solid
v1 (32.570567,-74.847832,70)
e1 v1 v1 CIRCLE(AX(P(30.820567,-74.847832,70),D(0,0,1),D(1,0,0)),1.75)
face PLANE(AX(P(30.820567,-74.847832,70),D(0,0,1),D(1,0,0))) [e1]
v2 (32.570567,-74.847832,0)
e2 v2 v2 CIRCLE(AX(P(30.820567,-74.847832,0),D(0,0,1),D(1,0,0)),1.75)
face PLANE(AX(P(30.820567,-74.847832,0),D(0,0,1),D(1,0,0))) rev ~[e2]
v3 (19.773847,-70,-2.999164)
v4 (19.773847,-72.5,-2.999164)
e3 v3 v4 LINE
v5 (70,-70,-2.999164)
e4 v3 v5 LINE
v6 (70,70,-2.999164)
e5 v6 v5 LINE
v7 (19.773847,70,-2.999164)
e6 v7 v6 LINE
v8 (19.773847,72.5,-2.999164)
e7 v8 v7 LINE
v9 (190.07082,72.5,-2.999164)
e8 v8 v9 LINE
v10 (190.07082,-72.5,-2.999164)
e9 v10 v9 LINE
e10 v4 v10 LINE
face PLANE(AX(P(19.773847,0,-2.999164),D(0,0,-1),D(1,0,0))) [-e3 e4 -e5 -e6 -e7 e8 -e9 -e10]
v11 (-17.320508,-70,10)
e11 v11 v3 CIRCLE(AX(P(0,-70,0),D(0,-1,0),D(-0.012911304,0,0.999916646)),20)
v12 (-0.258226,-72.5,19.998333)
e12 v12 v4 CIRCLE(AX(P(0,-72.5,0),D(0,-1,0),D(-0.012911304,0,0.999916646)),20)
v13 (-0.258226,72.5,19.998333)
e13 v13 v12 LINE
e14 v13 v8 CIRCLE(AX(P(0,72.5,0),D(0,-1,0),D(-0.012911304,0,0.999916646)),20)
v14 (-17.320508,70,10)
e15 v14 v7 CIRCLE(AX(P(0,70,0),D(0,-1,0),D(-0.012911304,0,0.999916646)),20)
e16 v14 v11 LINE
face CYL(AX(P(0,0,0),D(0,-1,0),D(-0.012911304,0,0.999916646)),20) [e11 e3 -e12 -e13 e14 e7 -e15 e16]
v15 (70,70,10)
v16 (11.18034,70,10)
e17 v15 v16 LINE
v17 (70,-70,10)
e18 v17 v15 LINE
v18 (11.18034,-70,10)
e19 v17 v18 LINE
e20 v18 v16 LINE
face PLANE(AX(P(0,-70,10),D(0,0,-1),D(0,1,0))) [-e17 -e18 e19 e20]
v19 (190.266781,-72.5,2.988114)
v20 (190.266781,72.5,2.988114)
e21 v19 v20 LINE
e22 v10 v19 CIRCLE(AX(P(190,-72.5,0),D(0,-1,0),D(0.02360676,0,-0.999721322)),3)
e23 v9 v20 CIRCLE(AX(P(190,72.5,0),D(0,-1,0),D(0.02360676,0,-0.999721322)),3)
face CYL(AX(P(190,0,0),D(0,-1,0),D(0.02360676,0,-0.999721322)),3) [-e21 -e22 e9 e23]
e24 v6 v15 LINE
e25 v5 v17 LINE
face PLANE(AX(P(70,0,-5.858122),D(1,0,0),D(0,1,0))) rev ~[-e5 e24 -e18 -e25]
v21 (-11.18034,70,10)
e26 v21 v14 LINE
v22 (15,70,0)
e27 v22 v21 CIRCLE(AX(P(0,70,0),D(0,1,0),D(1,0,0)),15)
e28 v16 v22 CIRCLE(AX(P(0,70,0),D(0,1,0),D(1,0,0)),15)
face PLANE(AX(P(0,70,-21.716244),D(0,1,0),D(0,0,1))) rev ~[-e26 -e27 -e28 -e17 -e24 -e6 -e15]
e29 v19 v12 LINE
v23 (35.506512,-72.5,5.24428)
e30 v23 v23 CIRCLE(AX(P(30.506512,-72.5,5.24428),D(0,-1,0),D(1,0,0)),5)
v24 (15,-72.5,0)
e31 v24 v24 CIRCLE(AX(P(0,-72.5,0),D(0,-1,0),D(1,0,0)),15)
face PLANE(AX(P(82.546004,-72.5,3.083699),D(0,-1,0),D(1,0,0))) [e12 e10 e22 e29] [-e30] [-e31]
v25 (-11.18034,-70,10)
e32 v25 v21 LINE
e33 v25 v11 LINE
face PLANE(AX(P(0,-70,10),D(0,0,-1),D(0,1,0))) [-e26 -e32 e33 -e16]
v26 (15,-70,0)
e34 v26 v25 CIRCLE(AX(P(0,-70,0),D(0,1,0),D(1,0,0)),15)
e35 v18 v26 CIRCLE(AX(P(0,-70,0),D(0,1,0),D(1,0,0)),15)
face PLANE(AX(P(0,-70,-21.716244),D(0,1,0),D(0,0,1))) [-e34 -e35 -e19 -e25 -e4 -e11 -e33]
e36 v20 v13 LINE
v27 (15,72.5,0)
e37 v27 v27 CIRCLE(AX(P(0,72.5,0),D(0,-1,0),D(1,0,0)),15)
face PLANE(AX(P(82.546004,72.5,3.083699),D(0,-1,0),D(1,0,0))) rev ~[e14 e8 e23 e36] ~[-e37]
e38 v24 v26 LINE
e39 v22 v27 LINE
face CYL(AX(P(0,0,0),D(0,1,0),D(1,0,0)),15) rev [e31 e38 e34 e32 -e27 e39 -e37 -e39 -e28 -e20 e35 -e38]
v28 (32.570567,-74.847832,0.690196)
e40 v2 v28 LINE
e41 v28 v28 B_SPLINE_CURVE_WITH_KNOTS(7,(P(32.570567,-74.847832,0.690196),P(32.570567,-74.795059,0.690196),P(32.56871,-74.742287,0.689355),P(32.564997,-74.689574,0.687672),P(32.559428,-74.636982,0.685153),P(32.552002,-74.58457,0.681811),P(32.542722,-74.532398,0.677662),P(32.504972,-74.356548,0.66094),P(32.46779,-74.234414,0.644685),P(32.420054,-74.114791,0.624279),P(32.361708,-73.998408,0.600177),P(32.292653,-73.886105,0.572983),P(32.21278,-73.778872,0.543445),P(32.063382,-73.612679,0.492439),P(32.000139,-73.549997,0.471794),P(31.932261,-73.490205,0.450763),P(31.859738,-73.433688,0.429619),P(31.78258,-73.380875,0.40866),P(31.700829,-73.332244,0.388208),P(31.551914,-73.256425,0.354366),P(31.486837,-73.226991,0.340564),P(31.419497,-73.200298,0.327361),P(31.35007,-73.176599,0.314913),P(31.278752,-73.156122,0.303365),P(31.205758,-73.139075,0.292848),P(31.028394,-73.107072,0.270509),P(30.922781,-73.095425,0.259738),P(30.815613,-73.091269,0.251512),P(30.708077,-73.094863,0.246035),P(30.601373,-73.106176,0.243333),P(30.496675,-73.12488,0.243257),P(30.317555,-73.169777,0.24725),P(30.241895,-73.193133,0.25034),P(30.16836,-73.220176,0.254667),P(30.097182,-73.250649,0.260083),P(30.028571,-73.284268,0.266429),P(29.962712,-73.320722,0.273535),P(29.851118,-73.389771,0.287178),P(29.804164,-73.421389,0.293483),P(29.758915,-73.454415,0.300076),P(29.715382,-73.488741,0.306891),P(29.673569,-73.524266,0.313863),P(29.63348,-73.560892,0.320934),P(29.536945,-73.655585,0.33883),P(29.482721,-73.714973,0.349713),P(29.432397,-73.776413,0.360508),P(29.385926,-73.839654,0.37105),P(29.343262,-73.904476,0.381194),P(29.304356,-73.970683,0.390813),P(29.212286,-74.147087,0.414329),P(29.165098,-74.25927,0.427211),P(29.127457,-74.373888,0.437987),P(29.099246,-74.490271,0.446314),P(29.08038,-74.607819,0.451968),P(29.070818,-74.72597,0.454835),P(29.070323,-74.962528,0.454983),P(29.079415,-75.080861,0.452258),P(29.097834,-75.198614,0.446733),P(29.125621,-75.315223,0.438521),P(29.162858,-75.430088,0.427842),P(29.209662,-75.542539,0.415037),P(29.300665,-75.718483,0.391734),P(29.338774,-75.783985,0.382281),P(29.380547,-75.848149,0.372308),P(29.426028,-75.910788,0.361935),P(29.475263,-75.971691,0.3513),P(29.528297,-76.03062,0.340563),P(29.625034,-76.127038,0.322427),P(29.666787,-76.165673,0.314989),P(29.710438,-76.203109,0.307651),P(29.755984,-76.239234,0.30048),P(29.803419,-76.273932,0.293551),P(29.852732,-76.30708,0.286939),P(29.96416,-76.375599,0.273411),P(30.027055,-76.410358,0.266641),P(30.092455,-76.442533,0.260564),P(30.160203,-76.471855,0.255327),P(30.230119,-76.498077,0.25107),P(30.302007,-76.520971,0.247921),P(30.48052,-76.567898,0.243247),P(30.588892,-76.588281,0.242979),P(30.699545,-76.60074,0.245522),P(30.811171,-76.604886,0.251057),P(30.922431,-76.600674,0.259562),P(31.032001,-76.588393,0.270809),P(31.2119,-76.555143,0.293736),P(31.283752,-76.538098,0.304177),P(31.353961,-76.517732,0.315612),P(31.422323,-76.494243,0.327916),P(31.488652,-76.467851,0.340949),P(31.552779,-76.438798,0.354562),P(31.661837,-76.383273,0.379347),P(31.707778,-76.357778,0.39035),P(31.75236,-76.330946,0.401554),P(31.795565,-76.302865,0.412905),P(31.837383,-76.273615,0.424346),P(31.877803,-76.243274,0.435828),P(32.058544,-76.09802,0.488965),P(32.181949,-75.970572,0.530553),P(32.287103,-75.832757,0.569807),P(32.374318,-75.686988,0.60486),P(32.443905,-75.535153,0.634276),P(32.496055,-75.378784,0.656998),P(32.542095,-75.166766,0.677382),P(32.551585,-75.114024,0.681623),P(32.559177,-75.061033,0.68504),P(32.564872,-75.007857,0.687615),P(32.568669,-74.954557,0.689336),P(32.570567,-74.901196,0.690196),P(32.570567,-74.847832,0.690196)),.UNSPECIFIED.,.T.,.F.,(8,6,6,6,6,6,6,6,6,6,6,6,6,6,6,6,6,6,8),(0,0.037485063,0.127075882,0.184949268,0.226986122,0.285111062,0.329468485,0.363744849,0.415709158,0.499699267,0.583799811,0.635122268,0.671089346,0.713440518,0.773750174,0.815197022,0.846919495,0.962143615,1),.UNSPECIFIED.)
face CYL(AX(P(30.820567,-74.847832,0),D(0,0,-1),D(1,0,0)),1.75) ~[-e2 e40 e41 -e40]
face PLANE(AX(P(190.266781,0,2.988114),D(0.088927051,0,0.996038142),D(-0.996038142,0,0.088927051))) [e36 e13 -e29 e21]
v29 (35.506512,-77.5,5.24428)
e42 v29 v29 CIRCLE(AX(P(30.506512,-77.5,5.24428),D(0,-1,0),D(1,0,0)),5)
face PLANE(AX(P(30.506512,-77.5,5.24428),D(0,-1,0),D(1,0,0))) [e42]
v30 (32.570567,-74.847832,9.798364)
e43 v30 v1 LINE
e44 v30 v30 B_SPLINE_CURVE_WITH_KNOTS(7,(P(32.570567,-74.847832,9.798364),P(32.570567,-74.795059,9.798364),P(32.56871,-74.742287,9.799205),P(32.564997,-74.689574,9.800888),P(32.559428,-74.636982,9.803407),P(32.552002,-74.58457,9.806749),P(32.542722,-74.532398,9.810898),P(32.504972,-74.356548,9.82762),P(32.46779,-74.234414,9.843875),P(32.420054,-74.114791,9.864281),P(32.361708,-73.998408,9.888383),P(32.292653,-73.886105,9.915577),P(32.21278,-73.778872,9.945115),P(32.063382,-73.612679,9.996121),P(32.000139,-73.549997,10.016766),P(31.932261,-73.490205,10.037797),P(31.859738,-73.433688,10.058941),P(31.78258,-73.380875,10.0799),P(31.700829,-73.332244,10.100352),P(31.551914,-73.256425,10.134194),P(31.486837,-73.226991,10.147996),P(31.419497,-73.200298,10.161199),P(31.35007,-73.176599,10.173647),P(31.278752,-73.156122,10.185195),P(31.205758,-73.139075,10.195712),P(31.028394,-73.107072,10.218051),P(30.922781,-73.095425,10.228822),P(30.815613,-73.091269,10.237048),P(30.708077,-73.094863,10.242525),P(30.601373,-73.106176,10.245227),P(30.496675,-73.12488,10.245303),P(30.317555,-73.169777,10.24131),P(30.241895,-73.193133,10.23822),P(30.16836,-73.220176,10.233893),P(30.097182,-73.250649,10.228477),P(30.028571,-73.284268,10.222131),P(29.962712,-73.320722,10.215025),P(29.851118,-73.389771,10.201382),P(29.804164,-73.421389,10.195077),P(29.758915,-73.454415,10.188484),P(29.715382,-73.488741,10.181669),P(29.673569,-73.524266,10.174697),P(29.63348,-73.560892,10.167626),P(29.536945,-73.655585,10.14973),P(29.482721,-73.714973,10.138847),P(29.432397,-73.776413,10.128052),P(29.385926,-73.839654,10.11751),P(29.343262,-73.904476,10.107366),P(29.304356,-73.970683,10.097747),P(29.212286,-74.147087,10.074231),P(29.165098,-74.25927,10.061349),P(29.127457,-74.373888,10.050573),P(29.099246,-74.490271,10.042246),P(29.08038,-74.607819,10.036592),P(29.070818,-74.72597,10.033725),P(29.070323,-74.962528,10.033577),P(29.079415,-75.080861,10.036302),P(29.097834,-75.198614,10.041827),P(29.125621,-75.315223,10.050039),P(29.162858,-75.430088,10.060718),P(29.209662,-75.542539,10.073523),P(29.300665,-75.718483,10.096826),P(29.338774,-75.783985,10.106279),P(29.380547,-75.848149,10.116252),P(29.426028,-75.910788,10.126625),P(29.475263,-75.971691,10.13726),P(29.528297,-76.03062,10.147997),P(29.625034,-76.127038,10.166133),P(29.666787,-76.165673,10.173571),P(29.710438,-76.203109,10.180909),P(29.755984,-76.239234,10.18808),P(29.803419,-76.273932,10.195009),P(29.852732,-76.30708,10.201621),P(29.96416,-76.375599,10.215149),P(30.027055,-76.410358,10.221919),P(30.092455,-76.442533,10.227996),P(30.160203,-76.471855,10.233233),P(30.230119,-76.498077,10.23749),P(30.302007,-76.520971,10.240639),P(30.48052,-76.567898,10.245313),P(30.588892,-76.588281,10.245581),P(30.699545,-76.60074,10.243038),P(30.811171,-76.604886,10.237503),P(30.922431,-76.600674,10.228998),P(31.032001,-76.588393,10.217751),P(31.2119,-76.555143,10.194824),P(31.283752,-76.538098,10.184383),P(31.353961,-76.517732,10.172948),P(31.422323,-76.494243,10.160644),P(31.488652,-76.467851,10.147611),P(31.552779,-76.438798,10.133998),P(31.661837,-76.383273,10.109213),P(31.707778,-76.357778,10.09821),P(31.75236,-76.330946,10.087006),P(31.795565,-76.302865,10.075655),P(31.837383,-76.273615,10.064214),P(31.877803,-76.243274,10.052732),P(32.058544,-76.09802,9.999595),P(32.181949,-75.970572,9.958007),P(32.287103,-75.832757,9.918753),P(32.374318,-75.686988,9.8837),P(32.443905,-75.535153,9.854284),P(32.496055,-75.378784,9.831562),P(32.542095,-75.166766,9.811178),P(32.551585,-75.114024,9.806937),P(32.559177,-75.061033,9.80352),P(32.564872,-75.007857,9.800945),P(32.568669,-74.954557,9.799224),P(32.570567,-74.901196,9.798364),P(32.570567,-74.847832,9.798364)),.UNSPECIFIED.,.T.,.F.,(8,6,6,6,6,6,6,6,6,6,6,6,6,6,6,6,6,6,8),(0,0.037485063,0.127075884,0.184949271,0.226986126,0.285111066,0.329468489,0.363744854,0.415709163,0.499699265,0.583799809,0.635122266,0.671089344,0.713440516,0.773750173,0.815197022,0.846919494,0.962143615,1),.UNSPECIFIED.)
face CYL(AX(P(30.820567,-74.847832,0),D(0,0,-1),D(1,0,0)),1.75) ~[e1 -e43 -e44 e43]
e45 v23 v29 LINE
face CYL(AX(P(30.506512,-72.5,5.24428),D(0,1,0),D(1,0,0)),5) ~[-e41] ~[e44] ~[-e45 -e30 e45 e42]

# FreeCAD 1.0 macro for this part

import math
import FreeCAD as App
import Part
import Sketcher


def add_polygon(sketch, points):
    """Adds a closed chain of lines whose ends are joined by coincident constraints."""
    first, n = sketch.GeometryCount, len(points)
    for a, b in zip(points, points[1:] + points[:1]):
        sketch.addGeometry(Part.LineSegment(App.Vector(*a, 0), App.Vector(*b, 0)), False)
    for i in range(n):
        sketch.addConstraint(Sketcher.Constraint("Coincident", first + i, 2, first + (i + 1) % n, 1))

doc = App.newDocument("Part")
body = doc.addObject("PartDesign::Body", "Body")

sketch1 = body.newObject("Sketcher::SketchObject", "Sketch")
sketch1.AttachmentSupport = (doc.getObject("XZ_Plane"), [""])
sketch1.MapMode = "FlatFace"
sketch1.addGeometry([
    Part.LineSegment(App.Vector(190.3, 3, 0), App.Vector(-0.3, 20, 0)),
    Part.ArcOfCircle(Part.Circle(App.Vector(0, 0, 0), App.Vector(0, 0, 1), 20), math.radians(91), math.radians(351)),
    Part.LineSegment(App.Vector(19.8, -3, 0), App.Vector(190.1, -3, 0)),
    Part.ArcOfCircle(Part.Circle(App.Vector(190, 0, 0), App.Vector(0, 0, 1), 3), math.radians(-89), math.radians(85)),
    Part.Circle(App.Vector(0, 0, 0), App.Vector(0, 0, 1), 15),
], False)
sketch1.addConstraint([
    Sketcher.Constraint("Coincident", 0, 2, 1, 1),
    Sketcher.Constraint("Coincident", 1, 2, 2, 1),
    Sketcher.Constraint("Coincident", 2, 2, 3, 1),
    Sketcher.Constraint("Tangent", 3, 2, 0, 1),
    Sketcher.Constraint("Horizontal", 2),
    Sketcher.Constraint("Coincident", 1, 3, -1, 1),
    Sketcher.Constraint("Coincident", 4, 3, -1, 1),
    Sketcher.Constraint("PointOnObject", 3, 3, -1),
    Sketcher.Constraint("Diameter", 4, 30.0),
    Sketcher.Constraint("Radius", 1, 20.0),
    Sketcher.Constraint("Radius", 3, 3.0),
    Sketcher.Constraint("DistanceX", -1, 1, 3, 3, 190.0),
    Sketcher.Constraint("DistanceX", 2, 1, 2, 2, 170.296973),
    Sketcher.Constraint("Distance", 0, 191.282843),
])
pad1 = body.newObject("PartDesign::Pad", "Pad")
pad1.Profile = sketch1
pad1.Length = 145
pad1.Midplane = True

sketch2 = body.newObject("Sketcher::SketchObject", "Sketch001")
sketch2.AttachmentSupport = (doc.getObject("YZ_Plane"), [""])
sketch2.MapMode = "FlatFace"
add_polygon(sketch2, [(-70, 10), (-70, -22), (70, -22), (70, 10)])
sketch2.addConstraint([
    Sketcher.Constraint("Vertical", 0),
    Sketcher.Constraint("Horizontal", 1),
    Sketcher.Constraint("Vertical", 2),
    Sketcher.Constraint("Horizontal", 3),
    Sketcher.Constraint("DistanceX", 1, 1, 1, 2, 140.0),
    Sketcher.Constraint("DistanceX", 0, 2, -1, 1, 70.0),
    Sketcher.Constraint("DistanceY", -1, 1, 2, 2, 10.0),
    Sketcher.Constraint("DistanceY", 0, 2, 0, 1, 31.716244),
])
pocket1 = body.newObject("PartDesign::Pocket", "Pocket")
pocket1.Profile = sketch2
pocket1.Length = 140
pocket1.Midplane = True

sketch3 = body.newObject("Sketcher::SketchObject", "Sketch002")
sketch3.AttachmentSupport = (doc.getObject("XZ_Plane"), [""])
sketch3.MapMode = "FlatFace"
sketch3.AttachmentOffset = App.Placement(App.Vector(0, 0, 72.5), App.Rotation())
sketch3.addGeometry(Part.Circle(App.Vector(31, 5, 0), App.Vector(0, 0, 1), 5), False)
sketch3.addConstraint([
    Sketcher.Constraint("Diameter", 0, 10.0),
    Sketcher.Constraint("DistanceY", -1, 1, 0, 3, 5.24428),
    Sketcher.Constraint("DistanceX", -1, 1, 0, 3, 30.506512),
])
pad2 = body.newObject("PartDesign::Pad", "Pad001")
pad2.Profile = sketch3
pad2.Length = 5

sketch4 = body.newObject("Sketcher::SketchObject", "Sketch003")
sketch4.AttachmentSupport = (doc.getObject("XY_Plane"), [""])
sketch4.MapMode = "FlatFace"
sketch4.addGeometry(Part.Circle(App.Vector(30.8, -74.8, 0), App.Vector(0, 0, 1), 1.8), False)
sketch4.addConstraint([
    Sketcher.Constraint("Diameter", 0, 3.5),
    Sketcher.Constraint("DistanceY", 0, 3, -1, 1, 74.847832),
    Sketcher.Constraint("DistanceX", -1, 1, 0, 3, 30.820567),
])
pad3 = body.newObject("PartDesign::Pad", "Pad002")
pad3.Profile = sketch4
pad3.Length = 70

doc.recompute()
